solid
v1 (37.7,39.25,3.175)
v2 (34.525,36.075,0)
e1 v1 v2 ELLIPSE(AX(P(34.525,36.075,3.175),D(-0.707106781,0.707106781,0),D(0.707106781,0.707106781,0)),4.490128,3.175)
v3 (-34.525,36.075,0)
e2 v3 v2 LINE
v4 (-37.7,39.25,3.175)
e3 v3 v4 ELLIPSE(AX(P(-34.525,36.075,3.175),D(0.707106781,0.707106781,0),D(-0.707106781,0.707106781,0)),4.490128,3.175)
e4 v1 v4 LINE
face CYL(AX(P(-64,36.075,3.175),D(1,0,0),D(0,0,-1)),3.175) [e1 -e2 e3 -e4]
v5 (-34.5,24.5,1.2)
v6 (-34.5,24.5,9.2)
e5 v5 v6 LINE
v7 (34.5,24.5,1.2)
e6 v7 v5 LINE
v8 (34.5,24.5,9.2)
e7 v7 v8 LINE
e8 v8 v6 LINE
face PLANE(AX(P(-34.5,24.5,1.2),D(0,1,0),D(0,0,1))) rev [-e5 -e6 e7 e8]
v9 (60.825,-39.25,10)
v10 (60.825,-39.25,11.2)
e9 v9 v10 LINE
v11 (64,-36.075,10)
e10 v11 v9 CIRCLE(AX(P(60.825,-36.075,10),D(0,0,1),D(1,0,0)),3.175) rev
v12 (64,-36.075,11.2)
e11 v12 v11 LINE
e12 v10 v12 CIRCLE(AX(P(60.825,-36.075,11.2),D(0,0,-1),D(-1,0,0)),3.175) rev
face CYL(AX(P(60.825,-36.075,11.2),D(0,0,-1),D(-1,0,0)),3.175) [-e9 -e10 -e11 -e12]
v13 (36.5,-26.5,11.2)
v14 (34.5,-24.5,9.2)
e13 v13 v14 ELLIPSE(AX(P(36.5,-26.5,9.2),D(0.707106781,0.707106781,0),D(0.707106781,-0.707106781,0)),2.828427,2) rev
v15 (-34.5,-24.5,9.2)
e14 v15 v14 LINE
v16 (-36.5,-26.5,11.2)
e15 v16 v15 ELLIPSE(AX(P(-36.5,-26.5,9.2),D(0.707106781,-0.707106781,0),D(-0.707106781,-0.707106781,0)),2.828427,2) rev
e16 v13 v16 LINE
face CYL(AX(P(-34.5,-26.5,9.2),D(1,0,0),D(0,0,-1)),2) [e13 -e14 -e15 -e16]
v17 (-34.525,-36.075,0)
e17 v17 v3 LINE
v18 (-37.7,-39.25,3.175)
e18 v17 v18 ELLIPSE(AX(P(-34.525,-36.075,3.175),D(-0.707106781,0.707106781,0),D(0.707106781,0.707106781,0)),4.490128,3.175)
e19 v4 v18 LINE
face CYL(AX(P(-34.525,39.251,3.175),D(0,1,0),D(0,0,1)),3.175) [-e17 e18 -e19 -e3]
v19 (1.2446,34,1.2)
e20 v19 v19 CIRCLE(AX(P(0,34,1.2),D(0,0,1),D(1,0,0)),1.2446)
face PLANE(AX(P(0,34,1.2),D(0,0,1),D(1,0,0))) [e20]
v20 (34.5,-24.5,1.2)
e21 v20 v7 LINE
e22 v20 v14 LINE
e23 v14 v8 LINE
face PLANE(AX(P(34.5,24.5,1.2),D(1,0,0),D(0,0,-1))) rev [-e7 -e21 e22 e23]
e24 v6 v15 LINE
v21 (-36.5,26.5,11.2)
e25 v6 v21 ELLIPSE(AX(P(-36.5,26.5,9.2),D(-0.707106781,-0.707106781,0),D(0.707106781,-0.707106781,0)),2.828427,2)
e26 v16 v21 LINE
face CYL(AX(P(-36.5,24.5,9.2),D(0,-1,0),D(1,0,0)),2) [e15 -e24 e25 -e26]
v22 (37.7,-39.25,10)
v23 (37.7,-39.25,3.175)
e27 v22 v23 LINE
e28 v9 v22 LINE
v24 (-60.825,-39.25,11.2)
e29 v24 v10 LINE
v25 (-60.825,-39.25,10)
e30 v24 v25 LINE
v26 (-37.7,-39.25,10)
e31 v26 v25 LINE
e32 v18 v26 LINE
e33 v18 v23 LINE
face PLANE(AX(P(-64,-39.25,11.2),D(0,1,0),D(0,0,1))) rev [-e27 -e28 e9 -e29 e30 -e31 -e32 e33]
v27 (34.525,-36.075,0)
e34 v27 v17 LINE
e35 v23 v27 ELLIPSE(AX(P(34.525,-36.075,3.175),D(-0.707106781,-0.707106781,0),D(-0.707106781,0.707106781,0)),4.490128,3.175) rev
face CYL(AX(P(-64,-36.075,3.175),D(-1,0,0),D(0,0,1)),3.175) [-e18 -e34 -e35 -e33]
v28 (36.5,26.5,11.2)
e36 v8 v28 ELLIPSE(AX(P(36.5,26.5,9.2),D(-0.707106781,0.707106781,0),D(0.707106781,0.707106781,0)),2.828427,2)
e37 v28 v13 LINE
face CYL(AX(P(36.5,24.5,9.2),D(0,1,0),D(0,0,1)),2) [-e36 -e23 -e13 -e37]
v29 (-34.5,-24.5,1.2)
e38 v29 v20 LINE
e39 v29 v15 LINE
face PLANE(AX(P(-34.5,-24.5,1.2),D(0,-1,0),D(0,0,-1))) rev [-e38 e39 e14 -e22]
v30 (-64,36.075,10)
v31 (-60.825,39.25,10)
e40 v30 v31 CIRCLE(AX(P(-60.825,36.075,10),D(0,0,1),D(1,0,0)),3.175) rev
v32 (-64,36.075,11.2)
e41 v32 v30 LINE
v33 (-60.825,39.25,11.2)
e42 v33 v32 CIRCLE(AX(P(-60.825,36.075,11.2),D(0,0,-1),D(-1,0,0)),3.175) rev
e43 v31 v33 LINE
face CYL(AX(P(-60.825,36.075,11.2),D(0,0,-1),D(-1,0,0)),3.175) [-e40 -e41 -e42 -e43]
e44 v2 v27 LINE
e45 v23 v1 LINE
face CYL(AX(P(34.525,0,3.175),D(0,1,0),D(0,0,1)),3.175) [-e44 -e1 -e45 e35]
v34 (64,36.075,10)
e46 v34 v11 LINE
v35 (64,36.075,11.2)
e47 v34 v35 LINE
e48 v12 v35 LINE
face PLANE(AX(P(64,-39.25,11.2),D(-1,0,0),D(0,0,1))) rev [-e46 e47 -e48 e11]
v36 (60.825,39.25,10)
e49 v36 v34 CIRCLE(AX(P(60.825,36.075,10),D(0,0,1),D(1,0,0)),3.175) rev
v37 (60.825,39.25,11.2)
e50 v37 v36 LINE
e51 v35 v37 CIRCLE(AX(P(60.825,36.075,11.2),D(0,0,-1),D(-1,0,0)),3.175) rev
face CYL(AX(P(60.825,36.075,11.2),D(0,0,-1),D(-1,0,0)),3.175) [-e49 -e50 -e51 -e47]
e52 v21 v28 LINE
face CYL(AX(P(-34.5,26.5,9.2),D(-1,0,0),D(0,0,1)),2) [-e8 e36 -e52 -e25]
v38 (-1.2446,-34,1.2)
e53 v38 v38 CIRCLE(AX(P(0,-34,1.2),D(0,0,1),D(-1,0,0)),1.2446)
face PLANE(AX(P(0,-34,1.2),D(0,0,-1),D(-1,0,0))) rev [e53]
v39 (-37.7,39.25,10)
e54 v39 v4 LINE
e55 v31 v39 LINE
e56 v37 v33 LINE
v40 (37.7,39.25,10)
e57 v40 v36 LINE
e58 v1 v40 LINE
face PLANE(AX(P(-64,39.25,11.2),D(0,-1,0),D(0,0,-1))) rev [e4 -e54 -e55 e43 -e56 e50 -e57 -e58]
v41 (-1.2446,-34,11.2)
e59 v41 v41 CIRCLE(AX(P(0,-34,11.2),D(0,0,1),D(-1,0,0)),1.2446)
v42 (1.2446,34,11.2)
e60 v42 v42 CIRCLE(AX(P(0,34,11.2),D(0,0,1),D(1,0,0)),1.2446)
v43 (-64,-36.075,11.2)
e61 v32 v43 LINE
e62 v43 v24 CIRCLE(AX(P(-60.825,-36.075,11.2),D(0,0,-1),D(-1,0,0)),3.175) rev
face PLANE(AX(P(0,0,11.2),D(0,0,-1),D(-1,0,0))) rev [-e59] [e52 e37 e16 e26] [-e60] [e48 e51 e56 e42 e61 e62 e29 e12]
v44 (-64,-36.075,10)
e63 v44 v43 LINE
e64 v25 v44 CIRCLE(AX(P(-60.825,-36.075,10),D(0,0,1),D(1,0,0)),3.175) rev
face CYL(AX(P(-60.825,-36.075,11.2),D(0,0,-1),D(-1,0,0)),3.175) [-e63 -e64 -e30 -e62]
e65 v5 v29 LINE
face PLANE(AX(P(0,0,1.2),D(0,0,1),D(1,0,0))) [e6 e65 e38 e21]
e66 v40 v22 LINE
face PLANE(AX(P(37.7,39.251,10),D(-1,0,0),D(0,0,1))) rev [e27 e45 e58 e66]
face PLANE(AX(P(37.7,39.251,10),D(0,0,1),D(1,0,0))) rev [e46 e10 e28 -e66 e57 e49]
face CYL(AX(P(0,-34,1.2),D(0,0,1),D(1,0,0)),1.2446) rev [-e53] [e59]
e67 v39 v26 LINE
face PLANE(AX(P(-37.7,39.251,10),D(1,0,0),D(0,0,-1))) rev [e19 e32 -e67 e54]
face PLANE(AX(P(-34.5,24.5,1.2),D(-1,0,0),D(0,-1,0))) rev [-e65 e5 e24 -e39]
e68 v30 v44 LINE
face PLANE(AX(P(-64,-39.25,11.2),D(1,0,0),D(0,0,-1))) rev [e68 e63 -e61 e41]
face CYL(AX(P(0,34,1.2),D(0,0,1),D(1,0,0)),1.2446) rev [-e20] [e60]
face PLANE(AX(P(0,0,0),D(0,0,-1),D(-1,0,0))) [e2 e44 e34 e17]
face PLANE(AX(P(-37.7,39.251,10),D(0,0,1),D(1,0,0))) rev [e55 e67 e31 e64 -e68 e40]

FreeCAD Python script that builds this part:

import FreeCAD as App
import Part
import Sketcher

V = App.Vector
Q = App.Units.Quantity


def edges_at(feature, points):
    """Names of the edges that pass closest to the given points."""
    edges = feature.Shape.Edges
    near = lambda p: min(range(len(edges)), key=lambda i: edges[i].distToShape(Part.Vertex(*p))[0])
    return sorted({f"Edge{near(p) + 1}" for p in points})

doc = App.newDocument("Part")
body = doc.addObject("PartDesign::Body", "Body")

# Sketch on XY plane
sketch1 = body.newObject("Sketcher::SketchObject", "Sketch")
sketch1.AttachmentSupport = (doc.getObject("XY_Plane"), [""])
sketch1.MapMode = "FlatFace"
sketch1.addGeometry(Part.LineSegment(V(-64, 39, 0), V(-64, -39, 0)), False)
sketch1.addGeometry(Part.LineSegment(V(-64, -39, 0), V(64, -39, 0)), False)
sketch1.addGeometry(Part.LineSegment(V(64, -39, 0), V(64, 39, 0)), False)
sketch1.addGeometry(Part.LineSegment(V(64, 39, 0), V(-64, 39, 0)), False)
sketch1.addConstraint(Sketcher.Constraint("Coincident", 0, 2, 1, 1))
sketch1.addConstraint(Sketcher.Constraint("Coincident", 1, 2, 2, 1))
sketch1.addConstraint(Sketcher.Constraint("Coincident", 2, 2, 3, 1))
sketch1.addConstraint(Sketcher.Constraint("Coincident", 3, 2, 0, 1))
sketch1.addConstraint(Sketcher.Constraint("Vertical", 0))
sketch1.addConstraint(Sketcher.Constraint("Horizontal", 1))
sketch1.addConstraint(Sketcher.Constraint("Vertical", 2))
sketch1.addConstraint(Sketcher.Constraint("Horizontal", 3))
sketch1.addConstraint(Sketcher.Constraint("Symmetric", 0, 2, 2, 2, -1, 1))
sketch1.addConstraint(Sketcher.Constraint("DistanceX", 1, 1, 1, 2, Q("128 mm")))
sketch1.addConstraint(Sketcher.Constraint("DistanceY", 0, 2, 0, 1, Q("78.5 mm")))
pad1 = body.newObject("PartDesign::Pad", "Pad")
pad1.Profile = sketch1
pad1.Length = 11.2

# Sketch on XY plane
sketch2 = body.newObject("Sketcher::SketchObject", "Sketch001")
sketch2.AttachmentSupport = (doc.getObject("XY_Plane"), [""])
sketch2.MapMode = "FlatFace"
sketch2.AttachmentOffset = App.Placement(V(0, 0, 11.2), App.Rotation())
sketch2.addGeometry(Part.LineSegment(V(-34, 24, 0), V(-34, -24, 0)), False)
sketch2.addGeometry(Part.LineSegment(V(-34, -24, 0), V(34, -24, 0)), False)
sketch2.addGeometry(Part.LineSegment(V(34, -24, 0), V(34, 24, 0)), False)
sketch2.addGeometry(Part.LineSegment(V(34, 24, 0), V(-34, 24, 0)), False)
sketch2.addConstraint(Sketcher.Constraint("Coincident", 0, 2, 1, 1))
sketch2.addConstraint(Sketcher.Constraint("Coincident", 1, 2, 2, 1))
sketch2.addConstraint(Sketcher.Constraint("Coincident", 2, 2, 3, 1))
sketch2.addConstraint(Sketcher.Constraint("Coincident", 3, 2, 0, 1))
sketch2.addConstraint(Sketcher.Constraint("Vertical", 0))
sketch2.addConstraint(Sketcher.Constraint("Horizontal", 1))
sketch2.addConstraint(Sketcher.Constraint("Vertical", 2))
sketch2.addConstraint(Sketcher.Constraint("Horizontal", 3))
sketch2.addConstraint(Sketcher.Constraint("Symmetric", 0, 2, 2, 2, -1, 1))
sketch2.addConstraint(Sketcher.Constraint("DistanceX", 1, 1, 1, 2, Q("69 mm")))
sketch2.addConstraint(Sketcher.Constraint("DistanceY", 0, 2, 0, 1, Q("49 mm")))
pocket1 = body.newObject("PartDesign::Pocket", "Pocket")
pocket1.Profile = sketch2
pocket1.Length = 10
doc.recompute()

fillet = body.newObject("PartDesign::Fillet", "Fillet")
fillet.Base = (pocket1, edges_at(pocket1, [
    (34.5, 0, 11.2),
    (0, 24.5, 11.2),
    (-34.5, 0, 11.2),
    (0, -24.5, 11.2),
]))
fillet.Radius = 2

# Sketch on XY plane
sketch3 = body.newObject("Sketcher::SketchObject", "Sketch002")
sketch3.AttachmentSupport = (doc.getObject("XY_Plane"), [""])
sketch3.MapMode = "FlatFace"
sketch3.AttachmentOffset = App.Placement(V(0, 0, 11.2), App.Rotation())
sketch3.addGeometry(Part.Circle(V(0, 34, 0), V(0, 0, 1), 1.2), False)
sketch3.addGeometry(Part.Circle(V(0, -34, 0), V(0, 0, 1), 1.2), False)
sketch3.addConstraint(Sketcher.Constraint("Equal", 0, 1))
sketch3.addConstraint(Sketcher.Constraint("Symmetric", 0, 3, 1, 3, -1, 1))
sketch3.addConstraint(Sketcher.Constraint("PointOnObject", 0, 3, -2))
sketch3.addConstraint(Sketcher.Constraint("DistanceY", -1, 1, 0, 3, Q("34 mm")))
sketch3.addConstraint(Sketcher.Constraint("Diameter", 0, Q("2.4892 mm")))
pocket2 = body.newObject("PartDesign::Pocket", "Pocket001")
pocket2.Profile = sketch3
pocket2.Length = 10

# Sketch on XZ plane
sketch4 = body.newObject("Sketcher::SketchObject", "Sketch003")
sketch4.AttachmentSupport = (doc.getObject("XZ_Plane"), [""])
sketch4.MapMode = "FlatFace"
sketch4.AttachmentOffset = App.Placement(V(0, 0, 39.25), App.Rotation())
sketch4.addGeometry(Part.LineSegment(V(38, 10, 0), V(38, 0, 0)), False)
sketch4.addGeometry(Part.LineSegment(V(38, 0, 0), V(64, 0, 0)), False)
sketch4.addGeometry(Part.LineSegment(V(64, 0, 0), V(64, 10, 0)), False)
sketch4.addGeometry(Part.LineSegment(V(64, 10, 0), V(38, 10, 0)), False)
sketch4.addConstraint(Sketcher.Constraint("Coincident", 0, 2, 1, 1))
sketch4.addConstraint(Sketcher.Constraint("Coincident", 1, 2, 2, 1))
sketch4.addConstraint(Sketcher.Constraint("Coincident", 2, 2, 3, 1))
sketch4.addConstraint(Sketcher.Constraint("Coincident", 3, 2, 0, 1))
sketch4.addConstraint(Sketcher.Constraint("Vertical", 0))
sketch4.addConstraint(Sketcher.Constraint("Horizontal", 1))
sketch4.addConstraint(Sketcher.Constraint("Vertical", 2))
sketch4.addConstraint(Sketcher.Constraint("Horizontal", 3))
sketch4.addConstraint(Sketcher.Constraint("PointOnObject", 0, 2, -1))
sketch4.addConstraint(Sketcher.Constraint("DistanceY", 0, 2, 0, 1, Q("10 mm")))
sketch4.addConstraint(Sketcher.Constraint("DistanceX", 1, 1, 1, 2, Q("26.3 mm")))
sketch4.addConstraint(Sketcher.Constraint("DistanceX", -1, 1, 1, 2, Q("64 mm")))
pocket3 = body.newObject("PartDesign::Pocket", "Pocket002")
pocket3.Profile = sketch4
pocket3.Type = "UpToFirst"

# Sketch on XZ plane
sketch5 = body.newObject("Sketcher::SketchObject", "Sketch004")
sketch5.AttachmentSupport = (doc.getObject("XZ_Plane"), [""])
sketch5.MapMode = "FlatFace"
sketch5.AttachmentOffset = App.Placement(V(0, 0, 39.25), App.Rotation())
sketch5.addGeometry(Part.LineSegment(V(-64, 10, 0), V(-64, 0, 0)), False)
sketch5.addGeometry(Part.LineSegment(V(-64, 0, 0), V(-38, 0, 0)), False)
sketch5.addGeometry(Part.LineSegment(V(-38, 0, 0), V(-38, 10, 0)), False)
sketch5.addGeometry(Part.LineSegment(V(-38, 10, 0), V(-64, 10, 0)), False)
sketch5.addConstraint(Sketcher.Constraint("Coincident", 0, 2, 1, 1))
sketch5.addConstraint(Sketcher.Constraint("Coincident", 1, 2, 2, 1))
sketch5.addConstraint(Sketcher.Constraint("Coincident", 2, 2, 3, 1))
sketch5.addConstraint(Sketcher.Constraint("Coincident", 3, 2, 0, 1))
sketch5.addConstraint(Sketcher.Constraint("Vertical", 0))
sketch5.addConstraint(Sketcher.Constraint("Horizontal", 1))
sketch5.addConstraint(Sketcher.Constraint("Vertical", 2))
sketch5.addConstraint(Sketcher.Constraint("Horizontal", 3))
sketch5.addConstraint(Sketcher.Constraint("PointOnObject", 0, 2, -1))
sketch5.addConstraint(Sketcher.Constraint("DistanceY", 0, 2, 0, 1, Q("10 mm")))
sketch5.addConstraint(Sketcher.Constraint("DistanceX", 1, 1, 1, 2, Q("26.3 mm")))
sketch5.addConstraint(Sketcher.Constraint("DistanceX", 0, 2, -1, 1, Q("64 mm")))
pocket4 = body.newObject("PartDesign::Pocket", "Pocket003")
pocket4.Profile = sketch5
pocket4.Type = "UpToFirst"
doc.recompute()

fillet2 = body.newObject("PartDesign::Fillet", "Fillet001")
fillet2.Base = (pocket4, edges_at(pocket4, [
    (0, -39.25, 0),
    (0, 39.25, 0),
    (37.7, 0, 0),
    (-37.7, 0, 0),
    (64, -39.25, 10.6),
    (-64, -39.25, 10.6),
    (-64, 39.25, 10.6),
    (64, 39.25, 10.6),
]))
fillet2.Radius = 3.175

doc.recompute()
